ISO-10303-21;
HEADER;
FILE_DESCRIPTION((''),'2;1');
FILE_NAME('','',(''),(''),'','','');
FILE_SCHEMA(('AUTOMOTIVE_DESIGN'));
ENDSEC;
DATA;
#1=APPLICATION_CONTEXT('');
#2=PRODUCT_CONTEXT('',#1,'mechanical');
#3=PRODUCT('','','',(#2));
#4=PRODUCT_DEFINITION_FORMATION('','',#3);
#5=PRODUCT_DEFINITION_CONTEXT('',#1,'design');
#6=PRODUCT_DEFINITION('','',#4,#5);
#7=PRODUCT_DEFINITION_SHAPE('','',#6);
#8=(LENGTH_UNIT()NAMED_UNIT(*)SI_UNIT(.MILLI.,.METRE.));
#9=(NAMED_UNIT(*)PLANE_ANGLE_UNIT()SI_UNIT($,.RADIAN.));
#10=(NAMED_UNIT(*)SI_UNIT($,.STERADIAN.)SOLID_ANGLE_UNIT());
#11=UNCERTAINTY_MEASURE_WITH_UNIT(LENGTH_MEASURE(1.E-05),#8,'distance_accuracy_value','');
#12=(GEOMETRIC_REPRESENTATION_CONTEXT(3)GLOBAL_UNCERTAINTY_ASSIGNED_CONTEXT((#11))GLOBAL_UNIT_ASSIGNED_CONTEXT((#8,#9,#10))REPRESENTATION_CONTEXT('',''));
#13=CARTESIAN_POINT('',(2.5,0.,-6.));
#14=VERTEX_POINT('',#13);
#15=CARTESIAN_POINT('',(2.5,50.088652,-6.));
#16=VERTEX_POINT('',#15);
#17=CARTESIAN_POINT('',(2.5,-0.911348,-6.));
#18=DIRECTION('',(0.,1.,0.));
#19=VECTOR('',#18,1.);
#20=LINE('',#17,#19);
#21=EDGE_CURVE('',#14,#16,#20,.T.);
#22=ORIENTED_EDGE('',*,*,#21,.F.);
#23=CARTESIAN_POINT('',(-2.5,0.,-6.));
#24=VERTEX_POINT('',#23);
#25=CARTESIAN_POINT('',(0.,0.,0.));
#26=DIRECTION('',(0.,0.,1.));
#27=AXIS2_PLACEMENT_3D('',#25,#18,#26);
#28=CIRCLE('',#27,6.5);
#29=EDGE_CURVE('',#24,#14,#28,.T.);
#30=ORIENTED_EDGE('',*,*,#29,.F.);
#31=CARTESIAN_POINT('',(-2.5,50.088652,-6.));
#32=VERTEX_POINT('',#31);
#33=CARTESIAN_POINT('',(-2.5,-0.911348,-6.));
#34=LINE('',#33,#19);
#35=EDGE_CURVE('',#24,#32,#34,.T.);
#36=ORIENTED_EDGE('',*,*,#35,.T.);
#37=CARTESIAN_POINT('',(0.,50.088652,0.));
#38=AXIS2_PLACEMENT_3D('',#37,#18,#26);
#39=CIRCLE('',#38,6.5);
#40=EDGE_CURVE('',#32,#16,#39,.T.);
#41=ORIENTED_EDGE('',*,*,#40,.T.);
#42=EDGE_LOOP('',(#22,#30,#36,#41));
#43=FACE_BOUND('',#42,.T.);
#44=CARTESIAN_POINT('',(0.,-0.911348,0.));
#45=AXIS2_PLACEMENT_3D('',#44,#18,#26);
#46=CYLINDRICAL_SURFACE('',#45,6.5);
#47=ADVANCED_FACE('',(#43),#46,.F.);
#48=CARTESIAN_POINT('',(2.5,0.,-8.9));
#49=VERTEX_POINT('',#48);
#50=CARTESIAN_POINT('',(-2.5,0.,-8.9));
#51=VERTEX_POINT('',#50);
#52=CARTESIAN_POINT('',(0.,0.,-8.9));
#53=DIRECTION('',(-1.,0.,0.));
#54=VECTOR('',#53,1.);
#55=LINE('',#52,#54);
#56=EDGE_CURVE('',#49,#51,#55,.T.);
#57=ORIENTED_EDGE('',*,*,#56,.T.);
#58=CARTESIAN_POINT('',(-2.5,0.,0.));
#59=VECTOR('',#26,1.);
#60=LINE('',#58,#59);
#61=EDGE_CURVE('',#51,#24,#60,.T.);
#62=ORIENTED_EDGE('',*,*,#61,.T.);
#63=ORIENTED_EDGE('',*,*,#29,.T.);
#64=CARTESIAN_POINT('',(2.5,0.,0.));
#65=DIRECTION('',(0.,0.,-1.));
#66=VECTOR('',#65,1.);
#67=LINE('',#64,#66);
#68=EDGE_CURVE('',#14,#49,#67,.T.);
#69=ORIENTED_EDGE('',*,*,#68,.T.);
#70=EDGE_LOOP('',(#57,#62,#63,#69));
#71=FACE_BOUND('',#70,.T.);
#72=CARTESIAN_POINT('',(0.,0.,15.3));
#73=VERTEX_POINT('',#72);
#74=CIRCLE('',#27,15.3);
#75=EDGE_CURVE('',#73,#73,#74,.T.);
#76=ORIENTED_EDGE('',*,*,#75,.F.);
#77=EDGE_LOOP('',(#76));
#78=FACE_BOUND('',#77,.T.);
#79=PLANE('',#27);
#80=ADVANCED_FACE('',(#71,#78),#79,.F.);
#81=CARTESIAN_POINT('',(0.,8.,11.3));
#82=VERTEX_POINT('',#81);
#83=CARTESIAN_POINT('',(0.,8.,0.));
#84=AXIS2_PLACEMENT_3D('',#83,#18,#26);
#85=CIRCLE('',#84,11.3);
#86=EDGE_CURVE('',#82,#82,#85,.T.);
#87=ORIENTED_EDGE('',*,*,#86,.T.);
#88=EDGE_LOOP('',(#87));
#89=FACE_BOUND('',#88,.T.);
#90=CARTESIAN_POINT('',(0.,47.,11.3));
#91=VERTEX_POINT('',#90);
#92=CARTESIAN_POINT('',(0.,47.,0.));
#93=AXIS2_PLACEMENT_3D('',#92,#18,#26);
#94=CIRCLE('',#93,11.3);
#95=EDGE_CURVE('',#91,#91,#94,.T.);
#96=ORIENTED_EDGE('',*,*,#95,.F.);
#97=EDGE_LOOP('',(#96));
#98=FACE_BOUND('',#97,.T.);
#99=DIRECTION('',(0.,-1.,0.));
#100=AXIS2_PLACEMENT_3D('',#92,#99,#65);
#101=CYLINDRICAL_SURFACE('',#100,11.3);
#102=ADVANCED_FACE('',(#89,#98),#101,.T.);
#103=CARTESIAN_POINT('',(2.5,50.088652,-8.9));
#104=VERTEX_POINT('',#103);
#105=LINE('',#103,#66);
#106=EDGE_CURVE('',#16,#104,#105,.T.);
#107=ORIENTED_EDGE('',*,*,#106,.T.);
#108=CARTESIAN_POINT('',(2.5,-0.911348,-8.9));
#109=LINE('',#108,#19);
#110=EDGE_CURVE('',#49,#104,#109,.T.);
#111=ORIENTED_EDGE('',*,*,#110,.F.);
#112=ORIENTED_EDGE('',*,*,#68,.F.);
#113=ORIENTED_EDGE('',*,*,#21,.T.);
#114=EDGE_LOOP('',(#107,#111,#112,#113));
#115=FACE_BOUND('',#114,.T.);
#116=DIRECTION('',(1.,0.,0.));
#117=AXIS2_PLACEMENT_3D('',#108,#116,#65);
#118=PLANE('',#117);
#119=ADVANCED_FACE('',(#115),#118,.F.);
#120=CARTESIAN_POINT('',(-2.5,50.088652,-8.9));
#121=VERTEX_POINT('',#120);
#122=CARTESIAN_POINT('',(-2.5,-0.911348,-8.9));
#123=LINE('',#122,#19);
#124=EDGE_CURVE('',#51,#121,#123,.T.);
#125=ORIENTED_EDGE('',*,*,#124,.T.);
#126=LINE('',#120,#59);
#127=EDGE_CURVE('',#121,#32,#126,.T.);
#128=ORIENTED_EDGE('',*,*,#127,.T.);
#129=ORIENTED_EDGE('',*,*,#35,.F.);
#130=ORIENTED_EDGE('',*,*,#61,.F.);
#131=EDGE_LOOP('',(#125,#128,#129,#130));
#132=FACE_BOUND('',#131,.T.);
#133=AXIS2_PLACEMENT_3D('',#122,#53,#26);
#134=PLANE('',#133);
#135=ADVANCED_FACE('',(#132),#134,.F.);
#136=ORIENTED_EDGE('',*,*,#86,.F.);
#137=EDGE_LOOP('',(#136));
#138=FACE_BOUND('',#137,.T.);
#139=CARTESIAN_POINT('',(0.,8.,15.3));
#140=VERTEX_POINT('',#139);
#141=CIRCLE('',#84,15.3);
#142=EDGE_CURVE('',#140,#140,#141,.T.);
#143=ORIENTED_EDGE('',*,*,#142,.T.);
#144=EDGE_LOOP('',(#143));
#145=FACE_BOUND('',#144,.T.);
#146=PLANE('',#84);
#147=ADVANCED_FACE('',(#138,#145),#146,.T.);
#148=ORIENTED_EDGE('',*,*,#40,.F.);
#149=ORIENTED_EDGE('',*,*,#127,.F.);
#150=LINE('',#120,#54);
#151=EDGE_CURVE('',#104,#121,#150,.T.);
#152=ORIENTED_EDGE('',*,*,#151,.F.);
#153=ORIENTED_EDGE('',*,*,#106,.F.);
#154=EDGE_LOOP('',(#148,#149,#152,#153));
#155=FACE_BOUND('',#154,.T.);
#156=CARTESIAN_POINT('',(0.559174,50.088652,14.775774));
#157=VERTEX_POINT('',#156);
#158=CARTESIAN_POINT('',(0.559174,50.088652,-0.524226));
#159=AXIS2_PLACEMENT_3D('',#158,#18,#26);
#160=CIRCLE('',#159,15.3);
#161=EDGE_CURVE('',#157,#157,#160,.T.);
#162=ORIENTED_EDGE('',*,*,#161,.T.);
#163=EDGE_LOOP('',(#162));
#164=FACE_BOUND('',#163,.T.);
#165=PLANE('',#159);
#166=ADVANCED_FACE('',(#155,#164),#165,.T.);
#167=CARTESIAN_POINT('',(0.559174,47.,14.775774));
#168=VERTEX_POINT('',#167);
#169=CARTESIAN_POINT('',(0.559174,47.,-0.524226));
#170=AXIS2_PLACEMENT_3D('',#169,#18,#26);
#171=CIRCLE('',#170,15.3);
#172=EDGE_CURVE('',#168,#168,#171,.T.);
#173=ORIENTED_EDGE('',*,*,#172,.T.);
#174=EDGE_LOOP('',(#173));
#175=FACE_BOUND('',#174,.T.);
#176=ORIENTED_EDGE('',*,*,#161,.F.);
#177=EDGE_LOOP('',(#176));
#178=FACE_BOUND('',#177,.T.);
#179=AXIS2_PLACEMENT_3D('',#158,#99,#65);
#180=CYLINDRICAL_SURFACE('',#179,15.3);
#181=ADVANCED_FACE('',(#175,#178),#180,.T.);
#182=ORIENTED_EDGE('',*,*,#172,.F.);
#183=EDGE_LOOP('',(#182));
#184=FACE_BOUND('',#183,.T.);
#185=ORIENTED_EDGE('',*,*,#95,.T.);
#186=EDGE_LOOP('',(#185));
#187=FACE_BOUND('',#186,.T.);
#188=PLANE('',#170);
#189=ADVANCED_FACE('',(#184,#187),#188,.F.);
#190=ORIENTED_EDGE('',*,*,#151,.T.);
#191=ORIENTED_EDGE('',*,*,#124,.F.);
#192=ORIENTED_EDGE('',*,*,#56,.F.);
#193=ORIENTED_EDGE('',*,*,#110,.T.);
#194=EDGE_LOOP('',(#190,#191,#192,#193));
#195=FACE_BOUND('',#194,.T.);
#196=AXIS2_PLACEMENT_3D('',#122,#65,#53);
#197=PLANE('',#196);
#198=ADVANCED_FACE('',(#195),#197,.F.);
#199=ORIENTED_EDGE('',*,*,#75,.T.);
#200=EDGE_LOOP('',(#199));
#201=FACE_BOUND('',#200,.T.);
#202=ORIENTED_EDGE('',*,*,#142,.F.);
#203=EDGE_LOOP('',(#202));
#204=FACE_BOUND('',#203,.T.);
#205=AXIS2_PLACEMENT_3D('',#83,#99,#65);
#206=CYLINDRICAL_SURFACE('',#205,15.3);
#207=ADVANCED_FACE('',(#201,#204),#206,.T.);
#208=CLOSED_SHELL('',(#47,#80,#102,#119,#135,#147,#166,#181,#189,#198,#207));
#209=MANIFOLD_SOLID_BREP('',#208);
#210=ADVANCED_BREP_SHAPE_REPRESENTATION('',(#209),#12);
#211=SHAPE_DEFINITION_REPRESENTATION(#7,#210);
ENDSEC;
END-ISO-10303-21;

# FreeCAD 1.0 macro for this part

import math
import FreeCAD as App
import Part
import Sketcher
Q = App.Units.Quantity

doc = App.newDocument("Part")
params = doc.addObject("Spreadsheet::Sheet", "Params")
for row, (alias, value) in enumerate([
    ("sketch1_diameter", "30.6 mm"),
    ("pad1_length", "8 mm"),
    ("sketch2_diameter", "22.6 mm"),
    ("pad2_length", "39 mm"),
    ("sketch3_diameter", "30.6 mm"),
    ("pad3_length", "3.088652 mm"),
    ("sketch4_radius", "6.5 mm"),
    ("sketch4_width", "5 mm"),
    ("sketch4_height", "2.9 mm"),
    ("pocket1_length", "51 mm"),
], start=1):
    params.set(f"A{row}", alias)
    params.set(f"B{row}", "=" + value)
    params.setAlias(f"B{row}", alias)

body = doc.addObject("PartDesign::Body", "Body")

# Sketch on XZ plane
sketch1 = body.newObject("Sketcher::SketchObject", "Sketch")
sketch1.AttachmentSupport = (doc.getObject("XZ_Plane"), [""])
sketch1.MapMode = "FlatFace"
sketch1.addGeometry(Part.Circle(App.Vector(0, 0, 0), App.Vector(0, 0, 1), 15.3), False)
sketch1.addConstraint([
    Sketcher.Constraint("Coincident", 0, 3, -1, 1),
    Sketcher.Constraint("Diameter", 0, Q("30.6 mm")),
])
sketch1.setExpression("Constraints[1]", "Params.sketch1_diameter")
pad1 = body.newObject("PartDesign::Pad", "Pad")
pad1.Profile = sketch1
pad1.setExpression("Length", "Params.pad1_length")
pad1.Reversed = True

# Sketch on XZ plane
sketch2 = body.newObject("Sketcher::SketchObject", "Sketch001")
sketch2.AttachmentSupport = (doc.getObject("XZ_Plane"), [""])
sketch2.MapMode = "FlatFace"
sketch2.AttachmentOffset = App.Placement(App.Vector(0, 0, -8), App.Rotation())
sketch2.addGeometry(Part.Circle(App.Vector(0, 0, 0), App.Vector(0, 0, 1), 11.3), False)
sketch2.addConstraint([
    Sketcher.Constraint("Coincident", 0, 3, -1, 1),
    Sketcher.Constraint("Diameter", 0, Q("22.6 mm")),
])
sketch2.setExpression("Constraints[1]", "Params.sketch2_diameter")
pad2 = body.newObject("PartDesign::Pad", "Pad001")
pad2.Profile = sketch2
pad2.setExpression("Length", "Params.pad2_length")
pad2.Reversed = True

# Sketch on XZ plane
sketch3 = body.newObject("Sketcher::SketchObject", "Sketch002")
sketch3.AttachmentSupport = (doc.getObject("XZ_Plane"), [""])
sketch3.MapMode = "FlatFace"
sketch3.AttachmentOffset = App.Placement(App.Vector(0, 0, -47), App.Rotation())
sketch3.addGeometry(Part.Circle(App.Vector(0.559174, -0.524226, 0), App.Vector(0, 0, 1), 15.3), False)
sketch3.addConstraint([
    Sketcher.Constraint("Diameter", 0, Q("30.6 mm")),
    Sketcher.Constraint("DistanceX", -1, 1, 0, 3, Q("0.559174 mm")),
    Sketcher.Constraint("DistanceY", 0, 3, -1, 1, Q("0.524226 mm")),
])
sketch3.setExpression("Constraints[0]", "Params.sketch3_diameter")
pad3 = body.newObject("PartDesign::Pad", "Pad002")
pad3.Profile = sketch3
pad3.setExpression("Length", "Params.pad3_length")
pad3.Reversed = True

# Sketch on XZ plane
sketch4 = body.newObject("Sketcher::SketchObject", "Sketch003")
sketch4.AttachmentSupport = (doc.getObject("XZ_Plane"), [""])
sketch4.MapMode = "FlatFace"
sketch4.AttachmentOffset = App.Placement(App.Vector(0, 0, -50.088652), App.Rotation())
sketch4.addGeometry([
    Part.LineSegment(App.Vector(2.5, -8.9, 0), App.Vector(-2.5, -8.9, 0)),
    Part.LineSegment(App.Vector(-2.5, -8.9, 0), App.Vector(-2.5, -6, 0)),
    Part.ArcOfCircle(Part.Circle(App.Vector(0, 0, 0), App.Vector(0, 0, 1), 6.5), math.radians(-67.380135), math.radians(247.380135)),
    Part.LineSegment(App.Vector(2.5, -6, 0), App.Vector(2.5, -8.9, 0)),
], False)
sketch4.addConstraint([
    Sketcher.Constraint("Coincident", 0, 2, 1, 1),
    Sketcher.Constraint("Coincident", 1, 2, 2, 2),
    Sketcher.Constraint("Coincident", 2, 1, 3, 1),
    Sketcher.Constraint("Coincident", 3, 2, 0, 1),
    Sketcher.Constraint("Horizontal", 0),
    Sketcher.Constraint("Vertical", 1),
    Sketcher.Constraint("Vertical", 3),
    Sketcher.Constraint("Coincident", 2, 3, -1, 1),
    Sketcher.Constraint("Horizontal", 1, 2, 2, 1),
    Sketcher.Constraint("Radius", 2, Q("6.5 mm")),
    Sketcher.Constraint("DistanceX", 0, 2, 0, 1, Q("5 mm")),
    Sketcher.Constraint("DistanceY", 1, 1, 1, 2, Q("2.9 mm")),
])
sketch4.setExpression("Constraints[9]", "Params.sketch4_radius")
sketch4.setExpression("Constraints[10]", "Params.sketch4_width")
sketch4.setExpression("Constraints[11]", "Params.sketch4_height")
pocket1 = body.newObject("PartDesign::Pocket", "Pocket")
pocket1.Profile = sketch4
pocket1.setExpression("Length", "Params.pocket1_length")
pocket1.Reversed = True

doc.recompute()
